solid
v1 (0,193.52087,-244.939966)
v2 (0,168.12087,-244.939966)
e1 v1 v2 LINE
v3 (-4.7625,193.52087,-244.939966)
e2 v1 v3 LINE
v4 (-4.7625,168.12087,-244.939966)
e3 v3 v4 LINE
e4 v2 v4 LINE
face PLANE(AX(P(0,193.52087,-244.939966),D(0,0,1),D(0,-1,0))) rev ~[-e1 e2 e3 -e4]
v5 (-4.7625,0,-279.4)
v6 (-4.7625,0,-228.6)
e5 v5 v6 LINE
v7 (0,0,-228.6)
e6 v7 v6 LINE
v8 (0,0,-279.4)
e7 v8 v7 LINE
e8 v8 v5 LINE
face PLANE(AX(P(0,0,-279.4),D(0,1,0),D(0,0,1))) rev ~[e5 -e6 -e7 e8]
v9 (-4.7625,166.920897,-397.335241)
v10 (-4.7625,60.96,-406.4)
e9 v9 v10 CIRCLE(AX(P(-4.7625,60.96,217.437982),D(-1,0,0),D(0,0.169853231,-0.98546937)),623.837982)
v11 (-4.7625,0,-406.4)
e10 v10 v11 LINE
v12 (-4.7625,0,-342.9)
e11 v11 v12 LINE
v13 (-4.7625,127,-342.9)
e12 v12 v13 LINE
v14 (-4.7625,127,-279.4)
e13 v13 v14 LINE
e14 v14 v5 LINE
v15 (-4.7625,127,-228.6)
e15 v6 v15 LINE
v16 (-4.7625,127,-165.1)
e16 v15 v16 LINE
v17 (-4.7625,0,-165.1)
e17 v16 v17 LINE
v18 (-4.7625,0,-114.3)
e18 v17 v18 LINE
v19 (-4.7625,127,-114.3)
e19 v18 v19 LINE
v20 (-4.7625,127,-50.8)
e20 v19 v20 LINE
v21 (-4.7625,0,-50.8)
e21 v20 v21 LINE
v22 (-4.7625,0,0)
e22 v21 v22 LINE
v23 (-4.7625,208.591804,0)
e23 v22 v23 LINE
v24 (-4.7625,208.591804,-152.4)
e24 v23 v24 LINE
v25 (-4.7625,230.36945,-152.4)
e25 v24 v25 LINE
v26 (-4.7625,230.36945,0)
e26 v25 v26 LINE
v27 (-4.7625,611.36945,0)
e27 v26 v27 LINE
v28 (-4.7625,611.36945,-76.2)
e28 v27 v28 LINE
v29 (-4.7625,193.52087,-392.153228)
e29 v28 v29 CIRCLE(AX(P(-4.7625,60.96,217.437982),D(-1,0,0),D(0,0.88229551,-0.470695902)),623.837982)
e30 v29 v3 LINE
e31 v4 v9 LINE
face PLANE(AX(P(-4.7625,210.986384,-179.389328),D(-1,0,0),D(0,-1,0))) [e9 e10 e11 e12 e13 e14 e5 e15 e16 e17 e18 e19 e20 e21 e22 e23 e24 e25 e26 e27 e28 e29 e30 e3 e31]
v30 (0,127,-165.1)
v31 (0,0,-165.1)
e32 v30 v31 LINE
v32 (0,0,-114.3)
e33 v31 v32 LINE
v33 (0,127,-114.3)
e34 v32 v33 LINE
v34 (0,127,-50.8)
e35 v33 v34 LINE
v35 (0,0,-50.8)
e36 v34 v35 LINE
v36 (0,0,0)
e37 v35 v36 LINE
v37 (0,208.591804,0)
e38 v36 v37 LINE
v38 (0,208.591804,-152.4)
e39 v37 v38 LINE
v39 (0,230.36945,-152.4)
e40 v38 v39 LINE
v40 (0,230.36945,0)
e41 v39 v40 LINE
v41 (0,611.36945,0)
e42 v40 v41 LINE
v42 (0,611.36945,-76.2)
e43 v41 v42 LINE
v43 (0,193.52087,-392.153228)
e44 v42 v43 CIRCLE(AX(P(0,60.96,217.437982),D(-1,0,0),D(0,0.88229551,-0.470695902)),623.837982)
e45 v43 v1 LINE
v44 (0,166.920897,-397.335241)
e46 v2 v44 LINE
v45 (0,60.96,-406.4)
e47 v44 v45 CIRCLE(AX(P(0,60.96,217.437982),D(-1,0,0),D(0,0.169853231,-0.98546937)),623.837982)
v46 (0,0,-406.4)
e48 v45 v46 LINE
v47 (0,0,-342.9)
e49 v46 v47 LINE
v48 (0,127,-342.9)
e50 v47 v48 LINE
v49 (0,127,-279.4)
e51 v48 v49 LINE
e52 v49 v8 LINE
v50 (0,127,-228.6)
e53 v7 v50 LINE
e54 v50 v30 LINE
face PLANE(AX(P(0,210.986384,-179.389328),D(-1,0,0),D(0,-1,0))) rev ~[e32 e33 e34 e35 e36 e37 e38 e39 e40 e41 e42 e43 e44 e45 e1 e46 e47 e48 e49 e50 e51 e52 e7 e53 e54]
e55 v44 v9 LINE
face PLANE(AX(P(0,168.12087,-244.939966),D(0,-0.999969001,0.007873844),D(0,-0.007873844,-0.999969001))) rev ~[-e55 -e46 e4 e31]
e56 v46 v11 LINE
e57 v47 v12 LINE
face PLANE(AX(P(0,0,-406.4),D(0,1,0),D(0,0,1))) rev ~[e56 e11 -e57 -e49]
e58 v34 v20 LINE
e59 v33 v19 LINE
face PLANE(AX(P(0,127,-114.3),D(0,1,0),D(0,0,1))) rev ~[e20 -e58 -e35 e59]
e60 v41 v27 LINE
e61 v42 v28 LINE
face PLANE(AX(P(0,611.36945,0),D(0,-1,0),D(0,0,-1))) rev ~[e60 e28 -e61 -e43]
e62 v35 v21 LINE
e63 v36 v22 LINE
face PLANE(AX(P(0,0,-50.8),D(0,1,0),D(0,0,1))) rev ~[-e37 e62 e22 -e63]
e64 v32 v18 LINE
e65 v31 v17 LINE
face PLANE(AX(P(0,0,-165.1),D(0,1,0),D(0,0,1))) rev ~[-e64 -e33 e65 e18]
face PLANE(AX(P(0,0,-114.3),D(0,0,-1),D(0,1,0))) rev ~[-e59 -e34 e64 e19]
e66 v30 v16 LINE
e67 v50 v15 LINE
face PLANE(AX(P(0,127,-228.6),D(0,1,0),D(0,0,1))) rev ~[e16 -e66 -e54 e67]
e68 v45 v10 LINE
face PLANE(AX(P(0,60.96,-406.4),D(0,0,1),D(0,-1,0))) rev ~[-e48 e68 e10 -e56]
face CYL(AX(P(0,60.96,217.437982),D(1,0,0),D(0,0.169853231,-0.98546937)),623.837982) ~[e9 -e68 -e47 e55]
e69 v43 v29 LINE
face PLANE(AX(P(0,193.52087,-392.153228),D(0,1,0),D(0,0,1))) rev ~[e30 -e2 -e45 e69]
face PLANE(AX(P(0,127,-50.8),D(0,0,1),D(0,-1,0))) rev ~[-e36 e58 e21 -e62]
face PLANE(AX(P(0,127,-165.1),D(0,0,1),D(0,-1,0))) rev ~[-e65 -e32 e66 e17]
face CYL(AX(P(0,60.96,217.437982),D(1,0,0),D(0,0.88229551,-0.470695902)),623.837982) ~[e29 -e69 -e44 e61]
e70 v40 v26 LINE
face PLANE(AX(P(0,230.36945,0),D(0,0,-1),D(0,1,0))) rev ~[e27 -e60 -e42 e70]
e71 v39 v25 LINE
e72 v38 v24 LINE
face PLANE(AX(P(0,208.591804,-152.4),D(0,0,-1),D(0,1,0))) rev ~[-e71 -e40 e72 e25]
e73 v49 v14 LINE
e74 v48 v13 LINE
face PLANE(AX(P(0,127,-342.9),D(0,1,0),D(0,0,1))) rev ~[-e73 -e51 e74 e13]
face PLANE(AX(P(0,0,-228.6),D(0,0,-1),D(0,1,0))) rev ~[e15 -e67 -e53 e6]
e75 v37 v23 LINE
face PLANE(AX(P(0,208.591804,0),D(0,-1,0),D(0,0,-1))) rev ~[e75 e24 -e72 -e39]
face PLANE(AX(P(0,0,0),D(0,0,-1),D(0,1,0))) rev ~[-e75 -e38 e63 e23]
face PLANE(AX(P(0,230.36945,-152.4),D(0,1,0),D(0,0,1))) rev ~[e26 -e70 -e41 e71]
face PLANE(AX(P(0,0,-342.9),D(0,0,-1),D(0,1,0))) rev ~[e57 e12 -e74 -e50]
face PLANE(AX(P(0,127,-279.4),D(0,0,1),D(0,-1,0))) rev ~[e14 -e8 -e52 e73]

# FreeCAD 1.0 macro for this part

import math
import FreeCAD as App
import Part
import Sketcher

V = App.Vector
Q = App.Units.Quantity

doc = App.newDocument("Part")
body = doc.addObject("PartDesign::Body", "Body")

sketch1 = doc.addObject("Sketcher::SketchObject", "Sketch")
body.addObject(sketch1)
sketch1.AttachmentSupport = (doc.XZ_Plane, [""])
sketch1.MapMode = "FlatFace"
sketch1.addGeometry(Part.LineSegment(V(-230, 0, 0), V(-611, 0, 0)), False)
sketch1.addGeometry(Part.LineSegment(V(-611, 0, 0), V(-611, -76, 0)), False)
sketch1.addGeometry(Part.ArcOfCircle(Part.Circle(V(-61, 217, 0), V(0, 0, 1), 624), math.radians(-152), math.radians(-102)), False)
sketch1.addGeometry(Part.LineSegment(V(-194, -392, 0), V(-194, -245, 0)), False)
sketch1.addGeometry(Part.LineSegment(V(-194, -245, 0), V(-168, -245, 0)), False)
sketch1.addGeometry(Part.LineSegment(V(-168, -245, 0), V(-167, -397, 0)), False)
sketch1.addGeometry(Part.ArcOfCircle(Part.Circle(V(-61, 217, 0), V(0, 0, 1), 624), math.radians(-99.78), math.radians(-90)), False)
sketch1.addGeometry(Part.LineSegment(V(-61, -406, 0), V(0, -406, 0)), False)
sketch1.addGeometry(Part.LineSegment(V(0, -406, 0), V(0, -343, 0)), False)
sketch1.addGeometry(Part.LineSegment(V(0, -343, 0), V(-127, -343, 0)), False)
sketch1.addGeometry(Part.LineSegment(V(-127, -343, 0), V(-127, -279, 0)), False)
sketch1.addGeometry(Part.LineSegment(V(-127, -279, 0), V(0, -279, 0)), False)
sketch1.addGeometry(Part.LineSegment(V(0, -279, 0), V(0, -229, 0)), False)
sketch1.addGeometry(Part.LineSegment(V(0, -229, 0), V(-127, -229, 0)), False)
sketch1.addGeometry(Part.LineSegment(V(-127, -229, 0), V(-127, -165, 0)), False)
sketch1.addGeometry(Part.LineSegment(V(-127, -165, 0), V(0, -165, 0)), False)
sketch1.addGeometry(Part.LineSegment(V(0, -165, 0), V(0, -114, 0)), False)
sketch1.addGeometry(Part.LineSegment(V(0, -114, 0), V(-127, -114, 0)), False)
sketch1.addGeometry(Part.LineSegment(V(-127, -114, 0), V(-127, -51, 0)), False)
sketch1.addGeometry(Part.LineSegment(V(-127, -51, 0), V(0, -51, 0)), False)
sketch1.addGeometry(Part.LineSegment(V(0, -51, 0), V(0, 0, 0)), False)
sketch1.addGeometry(Part.LineSegment(V(0, 0, 0), V(-209, 0, 0)), False)
sketch1.addGeometry(Part.LineSegment(V(-209, 0, 0), V(-209, -152, 0)), False)
sketch1.addGeometry(Part.LineSegment(V(-209, -152, 0), V(-230, -152, 0)), False)
sketch1.addGeometry(Part.LineSegment(V(-230, -152, 0), V(-230, 0, 0)), False)
sketch1.addConstraint(Sketcher.Constraint("Coincident", 0, 2, 1, 1))
sketch1.addConstraint(Sketcher.Constraint("Coincident", 1, 2, 2, 1))
sketch1.addConstraint(Sketcher.Constraint("Coincident", 2, 2, 3, 1))
sketch1.addConstraint(Sketcher.Constraint("Coincident", 3, 2, 4, 1))
sketch1.addConstraint(Sketcher.Constraint("Coincident", 4, 2, 5, 1))
sketch1.addConstraint(Sketcher.Constraint("Coincident", 5, 2, 6, 1))
sketch1.addConstraint(Sketcher.Constraint("Tangent", 6, 2, 7, 1))
sketch1.addConstraint(Sketcher.Constraint("Coincident", 7, 2, 8, 1))
sketch1.addConstraint(Sketcher.Constraint("Coincident", 8, 2, 9, 1))
sketch1.addConstraint(Sketcher.Constraint("Coincident", 9, 2, 10, 1))
sketch1.addConstraint(Sketcher.Constraint("Coincident", 10, 2, 11, 1))
sketch1.addConstraint(Sketcher.Constraint("Coincident", 11, 2, 12, 1))
sketch1.addConstraint(Sketcher.Constraint("Coincident", 12, 2, 13, 1))
sketch1.addConstraint(Sketcher.Constraint("Coincident", 13, 2, 14, 1))
sketch1.addConstraint(Sketcher.Constraint("Coincident", 14, 2, 15, 1))
sketch1.addConstraint(Sketcher.Constraint("Coincident", 15, 2, 16, 1))
sketch1.addConstraint(Sketcher.Constraint("Coincident", 16, 2, 17, 1))
sketch1.addConstraint(Sketcher.Constraint("Coincident", 17, 2, 18, 1))
sketch1.addConstraint(Sketcher.Constraint("Coincident", 18, 2, 19, 1))
sketch1.addConstraint(Sketcher.Constraint("Coincident", 19, 2, 20, 1))
sketch1.addConstraint(Sketcher.Constraint("Coincident", 20, 2, 21, 1))
sketch1.addConstraint(Sketcher.Constraint("Coincident", 21, 2, 22, 1))
sketch1.addConstraint(Sketcher.Constraint("Coincident", 22, 2, 23, 1))
sketch1.addConstraint(Sketcher.Constraint("Coincident", 23, 2, 24, 1))
sketch1.addConstraint(Sketcher.Constraint("Coincident", 24, 2, 0, 1))
sketch1.addConstraint(Sketcher.Constraint("Horizontal", 0))
sketch1.addConstraint(Sketcher.Constraint("Vertical", 1))
sketch1.addConstraint(Sketcher.Constraint("Vertical", 3))
sketch1.addConstraint(Sketcher.Constraint("Horizontal", 4))
sketch1.addConstraint(Sketcher.Constraint("Horizontal", 7))
sketch1.addConstraint(Sketcher.Constraint("Vertical", 8))
sketch1.addConstraint(Sketcher.Constraint("Horizontal", 9))
sketch1.addConstraint(Sketcher.Constraint("Vertical", 10))
sketch1.addConstraint(Sketcher.Constraint("Horizontal", 11))
sketch1.addConstraint(Sketcher.Constraint("Vertical", 12))
sketch1.addConstraint(Sketcher.Constraint("Horizontal", 13))
sketch1.addConstraint(Sketcher.Constraint("Vertical", 14))
sketch1.addConstraint(Sketcher.Constraint("Horizontal", 15))
sketch1.addConstraint(Sketcher.Constraint("Vertical", 16))
sketch1.addConstraint(Sketcher.Constraint("Horizontal", 17))
sketch1.addConstraint(Sketcher.Constraint("Vertical", 18))
sketch1.addConstraint(Sketcher.Constraint("Horizontal", 19))
sketch1.addConstraint(Sketcher.Constraint("Vertical", 20))
sketch1.addConstraint(Sketcher.Constraint("Horizontal", 21))
sketch1.addConstraint(Sketcher.Constraint("Vertical", 22))
sketch1.addConstraint(Sketcher.Constraint("Horizontal", 23))
sketch1.addConstraint(Sketcher.Constraint("Vertical", 24))
sketch1.addConstraint(Sketcher.Constraint("Coincident", 20, 2, -1, 1))
sketch1.addConstraint(Sketcher.Constraint("Coincident", 6, 3, 2, 3))
sketch1.addConstraint(Sketcher.Constraint("Equal", 2, 6))
sketch1.addConstraint(Sketcher.Constraint("PointOnObject", 0, 2, -1))
sketch1.addConstraint(Sketcher.Constraint("PointOnObject", 7, 2, -2))
sketch1.addConstraint(Sketcher.Constraint("PointOnObject", 11, 2, -2))
sketch1.addConstraint(Sketcher.Constraint("PointOnObject", 15, 2, -2))
sketch1.addConstraint(Sketcher.Constraint("Vertical", 10, 2, 13, 2))
sketch1.addConstraint(Sketcher.Constraint("Vertical", 14, 2, 17, 2))
sketch1.addConstraint(Sketcher.Constraint("Equal", 8, 10))
sketch1.addConstraint(Sketcher.Constraint("Equal", 10, 14))
sketch1.addConstraint(Sketcher.Constraint("Equal", 12, 16))
sketch1.addConstraint(Sketcher.Constraint("Equal", 14, 18))
sketch1.addConstraint(Sketcher.Constraint("Equal", 16, 20))
sketch1.addConstraint(Sketcher.Constraint("DistanceX", 0, 2, 0, 1, Q("15 in")))
sketch1.addConstraint(Sketcher.Constraint("DistanceX", 4, 1, 4, 2, Q("1 in")))
sketch1.addConstraint(Sketcher.Constraint("DistanceX", 9, 2, 9, 1, Q("5 in")))
sketch1.addConstraint(Sketcher.Constraint("DistanceY", 1, 2, 1, 1, Q("3 in")))
sketch1.addConstraint(Sketcher.Constraint("DistanceY", 12, 1, 12, 2, Q("2 in")))
sketch1.addConstraint(Sketcher.Constraint("DistanceY", 22, 2, 22, 1, Q("6 in")))
sketch1.addConstraint(Sketcher.Constraint("Distance", 5, Q("6 in")))
sketch1.addConstraint(Sketcher.Constraint("DistanceX", 7, 1, 7, 2, Q("2.4 in")))
sketch1.addConstraint(Sketcher.Constraint("DistanceY", 8, 1, 8, 2, Q("2.5 in")))
sketch1.addConstraint(Sketcher.Constraint("Radius", 2, 623.837982))
sketch1.addConstraint(Sketcher.Constraint("DistanceX", 21, 2, 21, 1, 208.591804))
sketch1.addConstraint(Sketcher.Constraint("DistanceY", 3, 1, 3, 2, 147.213262))
sketch1.addConstraint(Sketcher.Constraint("DistanceX", 3, 2, -1, 1, 193.52087))
pad1 = doc.addObject("PartDesign::Pad", "Pad")
body.addObject(pad1)
pad1.Profile = sketch1
pad1.Length = Q("0.1875 in")
body2 = doc.addObject("PartDesign::Body", "Body001")
doc.recompute()

body.Placement = App.Placement(V(0, 0, 0), App.Rotation(V(0, 0, 1), 270))
boolean = doc.addObject("PartDesign::Boolean", "Boolean")
body2.addObject(boolean)
boolean.Type = "Fuse"
boolean.addObjects([body])

doc.recompute()
